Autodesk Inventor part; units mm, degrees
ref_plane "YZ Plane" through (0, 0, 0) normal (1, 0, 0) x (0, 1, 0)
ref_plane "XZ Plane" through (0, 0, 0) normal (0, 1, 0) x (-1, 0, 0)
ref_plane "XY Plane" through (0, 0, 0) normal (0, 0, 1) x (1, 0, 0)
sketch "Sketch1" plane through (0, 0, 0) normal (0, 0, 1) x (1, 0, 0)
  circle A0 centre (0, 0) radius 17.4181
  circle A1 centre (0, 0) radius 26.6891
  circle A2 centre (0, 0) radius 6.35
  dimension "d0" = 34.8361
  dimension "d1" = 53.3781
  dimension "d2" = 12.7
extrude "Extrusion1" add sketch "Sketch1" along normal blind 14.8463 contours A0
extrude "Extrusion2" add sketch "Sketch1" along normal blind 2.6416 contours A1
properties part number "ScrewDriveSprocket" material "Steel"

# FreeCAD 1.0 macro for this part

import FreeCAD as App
import Part
import Sketcher

V = App.Vector
Q = App.Units.Quantity

doc = App.newDocument("Part")
body = doc.addObject("PartDesign::Body", "Body")

# Sketch on XY plane
sketch1 = doc.addObject("Sketcher::SketchObject", "Sketch")
body.addObject(sketch1)
sketch1.AttachmentSupport = (doc.XY_Plane, [""])
sketch1.MapMode = "FlatFace"
sketch1.addGeometry(Part.Circle(V(0, 0, 0), V(0, 0, 1), 17), False)
sketch1.addGeometry(Part.Circle(V(0, 0, 0), V(0, 0, 1), 6), False)
sketch1.addConstraint(Sketcher.Constraint("Coincident", 0, 3, -1, 1))
sketch1.addConstraint(Sketcher.Constraint("Coincident", 1, 3, -1, 1))
sketch1.addConstraint(Sketcher.Constraint("Diameter", 1, Q("0.5 in")))
sketch1.addConstraint(Sketcher.Constraint("Diameter", 0, Q("1.3715 in")))
pad1 = doc.addObject("PartDesign::Pad", "Pad")
body.addObject(pad1)
pad1.Profile = sketch1
pad1.Length = Q("0.5845 in")

# Sketch on XY plane
sketch2 = doc.addObject("Sketcher::SketchObject", "Sketch001")
body.addObject(sketch2)
sketch2.AttachmentSupport = (doc.XY_Plane, [""])
sketch2.MapMode = "FlatFace"
sketch2.addGeometry(Part.Circle(V(0, 0, 0), V(0, 0, 1), 27), False)
sketch2.addGeometry(Part.Circle(V(0, 0, 0), V(0, 0, 1), 17), False)
sketch2.addConstraint(Sketcher.Constraint("Coincident", 0, 3, -1, 1))
sketch2.addConstraint(Sketcher.Constraint("Coincident", 1, 3, -1, 1))
sketch2.addConstraint(Sketcher.Constraint("Diameter", 0, Q("2.1015 in")))
sketch2.addConstraint(Sketcher.Constraint("Diameter", 1, Q("1.3715 in")))
pad2 = doc.addObject("PartDesign::Pad", "Pad001")
body.addObject(pad2)
pad2.Profile = sketch2
pad2.Length = Q("0.104 in")

doc.recompute()
